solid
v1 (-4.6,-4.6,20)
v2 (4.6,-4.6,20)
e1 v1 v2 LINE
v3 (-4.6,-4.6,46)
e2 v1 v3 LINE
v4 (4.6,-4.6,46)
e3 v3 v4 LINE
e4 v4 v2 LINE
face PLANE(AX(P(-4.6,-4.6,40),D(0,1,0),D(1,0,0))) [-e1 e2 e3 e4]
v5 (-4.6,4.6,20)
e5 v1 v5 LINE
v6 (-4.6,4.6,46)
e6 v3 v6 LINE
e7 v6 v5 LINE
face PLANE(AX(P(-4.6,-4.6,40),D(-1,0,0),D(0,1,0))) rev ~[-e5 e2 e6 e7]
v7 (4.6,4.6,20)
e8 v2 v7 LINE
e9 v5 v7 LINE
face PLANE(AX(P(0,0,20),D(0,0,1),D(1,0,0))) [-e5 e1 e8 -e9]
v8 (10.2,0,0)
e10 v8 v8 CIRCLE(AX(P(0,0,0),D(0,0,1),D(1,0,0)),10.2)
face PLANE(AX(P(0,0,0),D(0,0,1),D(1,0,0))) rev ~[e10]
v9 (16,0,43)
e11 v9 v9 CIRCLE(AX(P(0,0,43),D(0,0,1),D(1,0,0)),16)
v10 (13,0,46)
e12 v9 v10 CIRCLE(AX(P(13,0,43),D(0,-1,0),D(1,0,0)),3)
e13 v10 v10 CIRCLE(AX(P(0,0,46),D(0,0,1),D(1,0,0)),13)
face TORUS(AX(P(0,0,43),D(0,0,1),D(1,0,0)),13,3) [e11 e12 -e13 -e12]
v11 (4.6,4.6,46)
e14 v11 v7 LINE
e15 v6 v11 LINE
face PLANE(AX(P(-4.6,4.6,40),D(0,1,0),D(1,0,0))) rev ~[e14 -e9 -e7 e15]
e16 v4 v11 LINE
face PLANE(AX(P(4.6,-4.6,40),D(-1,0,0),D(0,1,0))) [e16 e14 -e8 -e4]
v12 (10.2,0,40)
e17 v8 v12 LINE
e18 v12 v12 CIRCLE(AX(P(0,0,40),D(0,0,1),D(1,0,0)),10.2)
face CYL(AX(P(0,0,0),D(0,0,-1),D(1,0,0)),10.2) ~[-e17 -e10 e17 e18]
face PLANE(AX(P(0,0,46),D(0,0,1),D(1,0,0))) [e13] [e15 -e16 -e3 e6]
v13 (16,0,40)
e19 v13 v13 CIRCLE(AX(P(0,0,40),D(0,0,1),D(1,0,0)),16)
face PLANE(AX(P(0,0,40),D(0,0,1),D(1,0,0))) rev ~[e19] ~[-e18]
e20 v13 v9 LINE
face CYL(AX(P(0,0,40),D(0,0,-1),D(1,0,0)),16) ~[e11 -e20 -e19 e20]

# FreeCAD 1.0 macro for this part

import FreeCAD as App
import Part
import Sketcher

V = App.Vector
Q = App.Units.Quantity


def edges_at(feature, points):
    """Names of the edges that pass closest to the given points."""
    edges = feature.Shape.Edges
    near = lambda p: min(range(len(edges)), key=lambda i: edges[i].distToShape(Part.Vertex(*p))[0])
    return sorted({f"Edge{near(p) + 1}" for p in points})


def add_polygon(sketch, points):
    """Adds a closed chain of lines whose ends are joined by coincident constraints."""
    first, n = sketch.GeometryCount, len(points)
    for a, b in zip(points, points[1:] + points[:1]):
        sketch.addGeometry(Part.LineSegment(App.Vector(*a, 0), App.Vector(*b, 0)), False)
    for i in range(n):
        sketch.addConstraint(Sketcher.Constraint("Coincident", first + i, 2, first + (i + 1) % n, 1))

doc = App.newDocument("Part")
params = doc.addObject("Spreadsheet::Sheet", "Params")
for row, (alias, value) in enumerate([
    ("sketch1_diameter", "20.4 mm"),
    ("pad1_length", "40 mm"),
    ("sketch2_width", "9.2 mm"),
    ("pocket1_length", "20 mm"),
    ("sketch3_diameter", "32 mm"),
    ("sketch3_width", "9.2 mm"),
    ("pad2_length", "6 mm"),
    ("fillet_radius", "3 mm"),
], start=1):
    params.set(f"A{row}", alias)
    params.set(f"B{row}", "=" + value)
    params.setAlias(f"B{row}", alias)

body = doc.addObject("PartDesign::Body", "Body")

# Sketch on XY plane
sketch1 = body.newObject("Sketcher::SketchObject", "Sketch")
sketch1.AttachmentSupport = (doc.getObject("XY_Plane"), [""])
sketch1.MapMode = "FlatFace"
sketch1.addGeometry(Part.Circle(V(0, 0, 0), V(0, 0, 1), 10), False)
sketch1.addConstraint([
    Sketcher.Constraint("Coincident", 0, 3, -1, 1),
    Sketcher.Constraint("Diameter", 0, Q("20.4 mm")),
])
sketch1.setExpression("Constraints[1]", "Params.sketch1_diameter")
pad1 = body.newObject("PartDesign::Pad", "Pad")
pad1.Profile = sketch1
pad1.setExpression("Length", "Params.pad1_length")

# Sketch on XY plane
sketch2 = body.newObject("Sketcher::SketchObject", "Sketch001")
sketch2.AttachmentSupport = (doc.getObject("XY_Plane"), [""])
sketch2.MapMode = "FlatFace"
sketch2.AttachmentOffset = App.Placement(V(0, 0, 40), App.Rotation())
add_polygon(sketch2, [(-5, 5), (-5, -5), (5, -5), (5, 5)])  # lines 0-3
sketch2.addConstraint([
    Sketcher.Constraint("Vertical", 0),
    Sketcher.Constraint("Horizontal", 1),
    Sketcher.Constraint("Vertical", 2),
    Sketcher.Constraint("Horizontal", 3),
    Sketcher.Constraint("Symmetric", 0, 2, 2, 2, -1, 1),
    Sketcher.Constraint("Equal", 3, 0),
    Sketcher.Constraint("DistanceX", 1, 1, 1, 2, Q("9.2 mm")),
])
sketch2.setExpression("Constraints[10]", "Params.sketch2_width")
pocket1 = body.newObject("PartDesign::Pocket", "Pocket")
pocket1.Profile = sketch2
pocket1.setExpression("Length", "Params.pocket1_length")

# Sketch on XY plane
sketch3 = body.newObject("Sketcher::SketchObject", "Sketch002")
sketch3.AttachmentSupport = (doc.getObject("XY_Plane"), [""])
sketch3.MapMode = "FlatFace"
sketch3.AttachmentOffset = App.Placement(V(0, 0, 40), App.Rotation())
sketch3.addGeometry(Part.Circle(V(0, 0, 0), V(0, 0, 1), 16), False)  # 0
add_polygon(sketch3, [(5, -5), (-5, -5), (-5, 5), (5, 5)])  # lines 1-4
sketch3.addConstraint([
    Sketcher.Constraint("Horizontal", 1),
    Sketcher.Constraint("Vertical", 2),
    Sketcher.Constraint("Horizontal", 3),
    Sketcher.Constraint("Vertical", 4),
    Sketcher.Constraint("Coincident", 0, 3, -1, 1),
    Sketcher.Constraint("Symmetric", 1, 2, 3, 2, -1, 1),
    Sketcher.Constraint("Equal", 3, 2),
    Sketcher.Constraint("Diameter", 0, Q("32 mm")),
    Sketcher.Constraint("DistanceX", 1, 2, 1, 1, Q("9.2 mm")),
])
sketch3.setExpression("Constraints[11]", "Params.sketch3_diameter")
sketch3.setExpression("Constraints[12]", "Params.sketch3_width")
pad2 = body.newObject("PartDesign::Pad", "Pad001")
pad2.Profile = sketch3
pad2.setExpression("Length", "Params.pad2_length")
doc.recompute()

fillet = body.newObject("PartDesign::Fillet", "Fillet")
fillet.Base = (pad2, edges_at(pad2, [(-16, 0, 46)]))
fillet.setExpression("Radius", "Params.fillet_radius")

doc.recompute()
